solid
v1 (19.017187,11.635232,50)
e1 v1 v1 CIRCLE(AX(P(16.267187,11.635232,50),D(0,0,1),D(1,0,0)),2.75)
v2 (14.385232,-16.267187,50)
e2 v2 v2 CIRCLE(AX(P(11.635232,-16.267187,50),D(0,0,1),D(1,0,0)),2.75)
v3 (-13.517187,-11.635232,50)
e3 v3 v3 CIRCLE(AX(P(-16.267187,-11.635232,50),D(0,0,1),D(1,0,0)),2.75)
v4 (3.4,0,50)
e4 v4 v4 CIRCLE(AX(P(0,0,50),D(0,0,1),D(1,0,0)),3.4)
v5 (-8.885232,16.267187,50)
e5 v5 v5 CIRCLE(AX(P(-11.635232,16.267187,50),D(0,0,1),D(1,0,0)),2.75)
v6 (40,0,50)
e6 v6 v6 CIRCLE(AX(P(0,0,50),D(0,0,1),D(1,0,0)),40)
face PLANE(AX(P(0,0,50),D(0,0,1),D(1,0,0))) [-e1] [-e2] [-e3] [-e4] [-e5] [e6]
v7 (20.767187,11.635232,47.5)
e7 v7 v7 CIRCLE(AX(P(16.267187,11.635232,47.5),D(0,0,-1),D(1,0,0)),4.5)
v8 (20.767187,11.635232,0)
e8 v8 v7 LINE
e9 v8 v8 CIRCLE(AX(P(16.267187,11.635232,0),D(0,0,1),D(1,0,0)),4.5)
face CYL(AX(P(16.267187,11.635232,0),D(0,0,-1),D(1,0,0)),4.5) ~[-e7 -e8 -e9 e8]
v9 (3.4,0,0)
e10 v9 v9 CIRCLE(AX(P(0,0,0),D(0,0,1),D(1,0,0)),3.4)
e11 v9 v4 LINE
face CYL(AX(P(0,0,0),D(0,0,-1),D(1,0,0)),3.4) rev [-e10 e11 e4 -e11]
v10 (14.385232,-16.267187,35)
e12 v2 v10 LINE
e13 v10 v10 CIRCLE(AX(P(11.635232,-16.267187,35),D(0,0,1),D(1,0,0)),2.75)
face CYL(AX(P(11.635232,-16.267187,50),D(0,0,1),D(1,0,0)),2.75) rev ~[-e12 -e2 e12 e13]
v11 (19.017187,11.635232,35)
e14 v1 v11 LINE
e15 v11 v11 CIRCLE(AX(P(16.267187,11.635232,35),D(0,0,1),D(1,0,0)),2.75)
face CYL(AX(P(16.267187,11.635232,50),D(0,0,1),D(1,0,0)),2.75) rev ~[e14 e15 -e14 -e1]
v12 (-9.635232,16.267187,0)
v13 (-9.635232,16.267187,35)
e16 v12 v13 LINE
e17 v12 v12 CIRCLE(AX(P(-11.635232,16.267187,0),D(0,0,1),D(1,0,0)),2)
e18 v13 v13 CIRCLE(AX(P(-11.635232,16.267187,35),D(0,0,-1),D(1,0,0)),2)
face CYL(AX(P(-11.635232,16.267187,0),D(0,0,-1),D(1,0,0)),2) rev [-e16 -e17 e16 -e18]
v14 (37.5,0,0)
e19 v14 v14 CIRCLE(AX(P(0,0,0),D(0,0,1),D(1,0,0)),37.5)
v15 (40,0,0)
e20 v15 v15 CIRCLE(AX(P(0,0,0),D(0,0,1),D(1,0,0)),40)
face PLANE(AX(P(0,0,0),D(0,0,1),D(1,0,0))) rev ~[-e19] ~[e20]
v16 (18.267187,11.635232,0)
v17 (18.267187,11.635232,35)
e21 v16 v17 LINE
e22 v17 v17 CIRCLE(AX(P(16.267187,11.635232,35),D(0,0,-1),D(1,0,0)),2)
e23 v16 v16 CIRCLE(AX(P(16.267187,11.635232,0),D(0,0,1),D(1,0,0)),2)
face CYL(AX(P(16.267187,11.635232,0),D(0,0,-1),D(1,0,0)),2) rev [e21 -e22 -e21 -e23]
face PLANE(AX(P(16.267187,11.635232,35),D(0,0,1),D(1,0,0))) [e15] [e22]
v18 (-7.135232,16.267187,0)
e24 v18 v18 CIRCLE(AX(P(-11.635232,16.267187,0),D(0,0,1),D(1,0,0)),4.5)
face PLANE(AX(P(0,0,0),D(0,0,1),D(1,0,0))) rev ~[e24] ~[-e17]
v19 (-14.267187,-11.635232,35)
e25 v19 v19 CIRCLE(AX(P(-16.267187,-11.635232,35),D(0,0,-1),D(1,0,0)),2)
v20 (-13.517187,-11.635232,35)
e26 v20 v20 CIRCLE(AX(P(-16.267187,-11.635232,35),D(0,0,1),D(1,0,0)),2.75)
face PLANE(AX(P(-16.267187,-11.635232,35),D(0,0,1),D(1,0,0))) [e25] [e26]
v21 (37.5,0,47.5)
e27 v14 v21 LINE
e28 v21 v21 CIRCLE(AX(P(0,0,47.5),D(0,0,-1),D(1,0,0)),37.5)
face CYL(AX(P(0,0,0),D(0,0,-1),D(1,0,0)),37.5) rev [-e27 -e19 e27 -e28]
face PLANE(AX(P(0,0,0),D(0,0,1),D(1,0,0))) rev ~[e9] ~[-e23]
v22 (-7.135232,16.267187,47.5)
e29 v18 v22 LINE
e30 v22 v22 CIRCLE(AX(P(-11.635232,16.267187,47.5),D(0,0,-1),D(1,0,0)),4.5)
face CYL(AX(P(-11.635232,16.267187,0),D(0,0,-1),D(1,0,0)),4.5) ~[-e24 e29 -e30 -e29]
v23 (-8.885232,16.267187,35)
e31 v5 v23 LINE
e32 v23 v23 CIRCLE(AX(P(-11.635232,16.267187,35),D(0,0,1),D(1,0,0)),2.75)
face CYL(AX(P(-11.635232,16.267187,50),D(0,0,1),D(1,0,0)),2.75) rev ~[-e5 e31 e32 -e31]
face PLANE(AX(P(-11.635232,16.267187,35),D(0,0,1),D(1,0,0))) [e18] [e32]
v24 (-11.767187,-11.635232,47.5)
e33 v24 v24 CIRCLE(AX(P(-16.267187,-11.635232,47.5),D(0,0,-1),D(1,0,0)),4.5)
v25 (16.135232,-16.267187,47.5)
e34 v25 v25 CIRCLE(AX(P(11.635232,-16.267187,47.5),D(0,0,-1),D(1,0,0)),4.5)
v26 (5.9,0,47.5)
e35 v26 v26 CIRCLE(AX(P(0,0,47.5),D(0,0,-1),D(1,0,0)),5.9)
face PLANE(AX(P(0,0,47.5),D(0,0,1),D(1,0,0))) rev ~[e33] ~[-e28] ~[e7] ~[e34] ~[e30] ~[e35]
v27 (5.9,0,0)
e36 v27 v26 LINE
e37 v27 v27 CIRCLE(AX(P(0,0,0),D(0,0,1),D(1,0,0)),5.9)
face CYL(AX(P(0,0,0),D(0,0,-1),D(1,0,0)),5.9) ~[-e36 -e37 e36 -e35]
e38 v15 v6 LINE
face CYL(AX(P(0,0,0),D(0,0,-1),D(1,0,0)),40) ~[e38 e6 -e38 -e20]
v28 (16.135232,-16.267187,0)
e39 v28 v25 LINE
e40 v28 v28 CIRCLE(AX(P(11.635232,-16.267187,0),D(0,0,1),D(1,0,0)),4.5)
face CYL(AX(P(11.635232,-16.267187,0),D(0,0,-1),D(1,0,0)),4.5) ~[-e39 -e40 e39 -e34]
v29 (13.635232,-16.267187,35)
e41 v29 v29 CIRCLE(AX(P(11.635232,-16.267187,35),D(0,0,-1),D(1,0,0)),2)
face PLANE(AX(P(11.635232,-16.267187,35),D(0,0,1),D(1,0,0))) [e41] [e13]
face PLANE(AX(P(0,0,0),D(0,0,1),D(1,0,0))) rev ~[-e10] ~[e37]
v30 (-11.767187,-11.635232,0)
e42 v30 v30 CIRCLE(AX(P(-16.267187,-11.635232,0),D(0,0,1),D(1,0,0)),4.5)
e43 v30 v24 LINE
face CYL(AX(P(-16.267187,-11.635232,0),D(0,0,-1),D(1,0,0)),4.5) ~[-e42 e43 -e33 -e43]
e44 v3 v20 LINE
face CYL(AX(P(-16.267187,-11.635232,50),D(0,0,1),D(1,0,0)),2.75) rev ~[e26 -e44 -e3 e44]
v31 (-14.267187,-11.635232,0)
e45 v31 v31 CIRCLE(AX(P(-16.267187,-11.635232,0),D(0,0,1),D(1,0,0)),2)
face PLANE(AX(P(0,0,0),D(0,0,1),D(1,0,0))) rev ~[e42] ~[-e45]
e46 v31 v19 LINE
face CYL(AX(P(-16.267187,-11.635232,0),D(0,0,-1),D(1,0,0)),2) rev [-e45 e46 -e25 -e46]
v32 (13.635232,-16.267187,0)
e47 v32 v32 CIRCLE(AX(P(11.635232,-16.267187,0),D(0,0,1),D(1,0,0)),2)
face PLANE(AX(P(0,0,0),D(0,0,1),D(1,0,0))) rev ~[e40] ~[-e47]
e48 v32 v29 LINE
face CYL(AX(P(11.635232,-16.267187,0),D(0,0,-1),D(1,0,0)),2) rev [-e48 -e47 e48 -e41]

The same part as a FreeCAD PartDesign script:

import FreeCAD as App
import Part
import Sketcher
Q = App.Units.Quantity


def faces_at(feature, points):
    """Names of the faces that lie closest to the given points."""
    faces = feature.Shape.Faces
    near = lambda p: min(range(len(faces)), key=lambda i: faces[i].distToShape(Part.Vertex(*p))[0])
    return sorted({f"Face{near(p) + 1}" for p in points})

doc = App.newDocument("Part")
body = doc.addObject("PartDesign::Body", "Body")

sketch1 = doc.addObject("Sketcher::SketchObject", "Sketch")
body.addObject(sketch1)
sketch1.AttachmentSupport = (doc.XY_Plane, [""])
sketch1.MapMode = "FlatFace"
sketch1.addGeometry(Part.Circle(App.Vector(0, 0, 0), App.Vector(0, 0, 1), 40), False)
sketch1.addGeometry(Part.Circle(App.Vector(-16.267187, -11.635232, 0), App.Vector(0, 0, 1), 2), False)
sketch1.addGeometry(Part.Circle(App.Vector(11.635232, -16.267187, 0), App.Vector(0, 0, 1), 2), False)
sketch1.addGeometry(Part.Circle(App.Vector(-11.635232, 16.267187, 0), App.Vector(0, 0, 1), 2), False)
sketch1.addGeometry(Part.Circle(App.Vector(0, 0, 0), App.Vector(0, 0, 1), 3.4), False)
sketch1.addGeometry(Part.Circle(App.Vector(16.267187, 11.635232, 0), App.Vector(0, 0, 1), 2), False)
sketch1.addConstraint(Sketcher.Constraint("Coincident", 0, 3, -1, 1))
sketch1.addConstraint(Sketcher.Constraint("Coincident", 4, 3, -1, 1))
sketch1.addConstraint(Sketcher.Constraint("Equal", 1, 2))
sketch1.addConstraint(Sketcher.Constraint("Equal", 2, 3))
sketch1.addConstraint(Sketcher.Constraint("Equal", 3, 5))
sketch1.addConstraint(Sketcher.Constraint("Symmetric", 2, 3, 3, 3, -1, 1))
sketch1.addConstraint(Sketcher.Constraint("Symmetric", 1, 3, 5, 3, -1, 1))
sketch1.addConstraint(Sketcher.Constraint("Diameter", 0, Q("80 mm")))
sketch1.addConstraint(Sketcher.Constraint("Diameter", 1, Q("4 mm")))
sketch1.addConstraint(Sketcher.Constraint("Diameter", 4, Q("6.8 mm")))
sketch1.addConstraint(Sketcher.Constraint("DistanceX", 1, 3, 2, 3, Q("27.902419 mm")))
sketch1.addConstraint(Sketcher.Constraint("DistanceY", 1, 3, 3, 3, Q("27.902419 mm")))
sketch1.addConstraint(Sketcher.Constraint("DistanceX", 1, 3, -1, 1, Q("16.267187 mm")))
sketch1.addConstraint(Sketcher.Constraint("DistanceY", 1, 3, -1, 1, Q("11.635232 mm")))
pad1 = doc.addObject("PartDesign::Pad", "Pad")
body.addObject(pad1)
pad1.Profile = sketch1
pad1.Length = 50
doc.recompute()

thickness = doc.addObject("PartDesign::Thickness", "Thickness")
body.addObject(thickness)
thickness.Base = (pad1, faces_at(pad1, [(-16, -16, 0)]))
thickness.Value = 2.5
thickness.Reversed = True
thickness.Join = "Arc"
body2 = doc.addObject("PartDesign::Body", "Body001")

sketch2 = doc.addObject("Sketcher::SketchObject", "Sketch001")
body2.addObject(sketch2)
sketch2.AttachmentSupport = (doc.getObject("XY_Plane001"), [""])
sketch2.MapMode = "FlatFace"
sketch2.AttachmentOffset = App.Placement(App.Vector(0, 0, 50), App.Rotation())
sketch2.addGeometry(Part.Circle(App.Vector(-11.635232, 16.267187, 0), App.Vector(0, 0, 1), 2.75), False)
sketch2.addConstraint(Sketcher.Constraint("Diameter", 0, Q("5.5 mm")))
sketch2.addConstraint(Sketcher.Constraint("DistanceX", 0, 3, -1, 1, Q("11.635232 mm")))
sketch2.addConstraint(Sketcher.Constraint("DistanceY", -1, 1, 0, 3, Q("16.267187 mm")))
pad2 = doc.addObject("PartDesign::Pad", "Pad001")
body2.addObject(pad2)
pad2.Profile = sketch2
pad2.Length = 10
pad2.Reversed = True
body3 = doc.addObject("PartDesign::Body", "Body002")

sketch3 = doc.addObject("Sketcher::SketchObject", "Sketch002")
body3.addObject(sketch3)
sketch3.AttachmentSupport = (doc.getObject("XY_Plane002"), [""])
sketch3.MapMode = "FlatFace"
sketch3.AttachmentOffset = App.Placement(App.Vector(0, 0, 50), App.Rotation())
sketch3.addGeometry(Part.Circle(App.Vector(16.267187, 11.635232, 0), App.Vector(0, 0, 1), 2.75), False)
sketch3.addConstraint(Sketcher.Constraint("Diameter", 0, Q("5.5 mm")))
sketch3.addConstraint(Sketcher.Constraint("DistanceX", -1, 1, 0, 3, Q("16.267187 mm")))
sketch3.addConstraint(Sketcher.Constraint("DistanceY", -1, 1, 0, 3, Q("11.635232 mm")))
pad3 = doc.addObject("PartDesign::Pad", "Pad002")
body3.addObject(pad3)
pad3.Profile = sketch3
pad3.Length = 10
pad3.Reversed = True
body4 = doc.addObject("PartDesign::Body", "Body003")

sketch4 = doc.addObject("Sketcher::SketchObject", "Sketch003")
body4.addObject(sketch4)
sketch4.AttachmentSupport = (doc.getObject("XY_Plane003"), [""])
sketch4.MapMode = "FlatFace"
sketch4.AttachmentOffset = App.Placement(App.Vector(0, 0, 50), App.Rotation())
sketch4.addGeometry(Part.Circle(App.Vector(11.635232, -16.267187, 0), App.Vector(0, 0, 1), 2.75), False)
sketch4.addConstraint(Sketcher.Constraint("Diameter", 0, Q("5.5 mm")))
sketch4.addConstraint(Sketcher.Constraint("DistanceX", -1, 1, 0, 3, Q("11.635232 mm")))
sketch4.addConstraint(Sketcher.Constraint("DistanceY", 0, 3, -1, 1, Q("16.267187 mm")))
pad4 = doc.addObject("PartDesign::Pad", "Pad003")
body4.addObject(pad4)
pad4.Profile = sketch4
pad4.Length = 10
pad4.Reversed = True
body5 = doc.addObject("PartDesign::Body", "Body004")

sketch5 = doc.addObject("Sketcher::SketchObject", "Sketch004")
body5.addObject(sketch5)
sketch5.AttachmentSupport = (doc.getObject("XY_Plane004"), [""])
sketch5.MapMode = "FlatFace"
sketch5.AttachmentOffset = App.Placement(App.Vector(0, 0, 50), App.Rotation())
sketch5.addGeometry(Part.Circle(App.Vector(-16.267187, -11.635232, 0), App.Vector(0, 0, 1), 2.75), False)
sketch5.addConstraint(Sketcher.Constraint("Diameter", 0, Q("5.5 mm")))
sketch5.addConstraint(Sketcher.Constraint("DistanceX", 0, 3, -1, 1, Q("16.267187 mm")))
sketch5.addConstraint(Sketcher.Constraint("DistanceY", 0, 3, -1, 1, Q("11.635232 mm")))
pad5 = doc.addObject("PartDesign::Pad", "Pad004")
body5.addObject(pad5)
pad5.Profile = sketch5
pad5.Length = 10
pad5.Reversed = True
body6 = doc.addObject("PartDesign::Body", "Body005")
body6.AllowCompound = True

sketch6 = doc.addObject("Sketcher::SketchObject", "Sketch005")
body6.addObject(sketch6)
sketch6.AttachmentSupport = (doc.getObject("XY_Plane005"), [""])
sketch6.MapMode = "FlatFace"
sketch6.AttachmentOffset = App.Placement(App.Vector(0, 0, 50), App.Rotation())
sketch6.addGeometry(Part.Circle(App.Vector(-11.635232, 16.267187, 0), App.Vector(0, 0, 1), 2.75), False)
sketch6.addGeometry(Part.Circle(App.Vector(11.635232, -16.267187, 0), App.Vector(0, 0, 1), 2.75), False)
sketch6.addGeometry(Part.Circle(App.Vector(16.267187, 11.635232, 0), App.Vector(0, 0, 1), 2.75), False)
sketch6.addGeometry(Part.Circle(App.Vector(-16.267187, -11.635232, 0), App.Vector(0, 0, 1), 2.75), False)
sketch6.addConstraint(Sketcher.Constraint("Equal", 0, 1))
sketch6.addConstraint(Sketcher.Constraint("Equal", 1, 2))
sketch6.addConstraint(Sketcher.Constraint("Equal", 2, 3))
sketch6.addConstraint(Sketcher.Constraint("Symmetric", 0, 3, 1, 3, -1, 1))
sketch6.addConstraint(Sketcher.Constraint("Symmetric", 2, 3, 3, 3, -1, 1))
sketch6.addConstraint(Sketcher.Constraint("Diameter", 0, Q("5.5 mm")))
sketch6.addConstraint(Sketcher.Constraint("DistanceX", 0, 3, 2, 3, Q("27.902419 mm")))
sketch6.addConstraint(Sketcher.Constraint("DistanceY", 1, 3, 2, 3, Q("27.902419 mm")))
sketch6.addConstraint(Sketcher.Constraint("DistanceX", 0, 3, -1, 1, Q("11.635232 mm")))
sketch6.addConstraint(Sketcher.Constraint("DistanceY", -1, 1, 0, 3, Q("16.267187 mm")))
pad6 = doc.addObject("PartDesign::Pad", "Pad005")
body6.addObject(pad6)
pad6.Profile = sketch6
pad6.Length = 15
pad6.Reversed = True
doc.recompute()

body7 = doc.addObject("PartDesign::Body", "Body006")
body7.BaseFeature = body6
boolean = doc.addObject("PartDesign::Boolean", "Boolean")
body.addObject(boolean)
boolean.Type = "Cut"
boolean.addObjects([body7])
doc.recompute()

body8 = doc.addObject("PartDesign::Body", "Body007")
body8.BaseFeature = body6
boolean2 = doc.addObject("PartDesign::Boolean", "Boolean001")
body2.addObject(boolean2)
boolean2.Type = "Cut"
boolean2.addObjects([body8])
doc.recompute()

body9 = doc.addObject("PartDesign::Body", "Body008")
body9.BaseFeature = body6
boolean3 = doc.addObject("PartDesign::Boolean", "Boolean002")
body3.addObject(boolean3)
boolean3.Type = "Cut"
boolean3.addObjects([body9])
doc.recompute()

body10 = doc.addObject("PartDesign::Body", "Body009")
body10.BaseFeature = body6
boolean4 = doc.addObject("PartDesign::Boolean", "Boolean003")
body4.addObject(boolean4)
boolean4.Type = "Cut"
boolean4.addObjects([body10])
doc.recompute()

boolean5 = doc.addObject("PartDesign::Boolean", "Boolean004")
body5.addObject(boolean5)
boolean5.Type = "Cut"
boolean5.addObjects([body6])

doc.recompute()
